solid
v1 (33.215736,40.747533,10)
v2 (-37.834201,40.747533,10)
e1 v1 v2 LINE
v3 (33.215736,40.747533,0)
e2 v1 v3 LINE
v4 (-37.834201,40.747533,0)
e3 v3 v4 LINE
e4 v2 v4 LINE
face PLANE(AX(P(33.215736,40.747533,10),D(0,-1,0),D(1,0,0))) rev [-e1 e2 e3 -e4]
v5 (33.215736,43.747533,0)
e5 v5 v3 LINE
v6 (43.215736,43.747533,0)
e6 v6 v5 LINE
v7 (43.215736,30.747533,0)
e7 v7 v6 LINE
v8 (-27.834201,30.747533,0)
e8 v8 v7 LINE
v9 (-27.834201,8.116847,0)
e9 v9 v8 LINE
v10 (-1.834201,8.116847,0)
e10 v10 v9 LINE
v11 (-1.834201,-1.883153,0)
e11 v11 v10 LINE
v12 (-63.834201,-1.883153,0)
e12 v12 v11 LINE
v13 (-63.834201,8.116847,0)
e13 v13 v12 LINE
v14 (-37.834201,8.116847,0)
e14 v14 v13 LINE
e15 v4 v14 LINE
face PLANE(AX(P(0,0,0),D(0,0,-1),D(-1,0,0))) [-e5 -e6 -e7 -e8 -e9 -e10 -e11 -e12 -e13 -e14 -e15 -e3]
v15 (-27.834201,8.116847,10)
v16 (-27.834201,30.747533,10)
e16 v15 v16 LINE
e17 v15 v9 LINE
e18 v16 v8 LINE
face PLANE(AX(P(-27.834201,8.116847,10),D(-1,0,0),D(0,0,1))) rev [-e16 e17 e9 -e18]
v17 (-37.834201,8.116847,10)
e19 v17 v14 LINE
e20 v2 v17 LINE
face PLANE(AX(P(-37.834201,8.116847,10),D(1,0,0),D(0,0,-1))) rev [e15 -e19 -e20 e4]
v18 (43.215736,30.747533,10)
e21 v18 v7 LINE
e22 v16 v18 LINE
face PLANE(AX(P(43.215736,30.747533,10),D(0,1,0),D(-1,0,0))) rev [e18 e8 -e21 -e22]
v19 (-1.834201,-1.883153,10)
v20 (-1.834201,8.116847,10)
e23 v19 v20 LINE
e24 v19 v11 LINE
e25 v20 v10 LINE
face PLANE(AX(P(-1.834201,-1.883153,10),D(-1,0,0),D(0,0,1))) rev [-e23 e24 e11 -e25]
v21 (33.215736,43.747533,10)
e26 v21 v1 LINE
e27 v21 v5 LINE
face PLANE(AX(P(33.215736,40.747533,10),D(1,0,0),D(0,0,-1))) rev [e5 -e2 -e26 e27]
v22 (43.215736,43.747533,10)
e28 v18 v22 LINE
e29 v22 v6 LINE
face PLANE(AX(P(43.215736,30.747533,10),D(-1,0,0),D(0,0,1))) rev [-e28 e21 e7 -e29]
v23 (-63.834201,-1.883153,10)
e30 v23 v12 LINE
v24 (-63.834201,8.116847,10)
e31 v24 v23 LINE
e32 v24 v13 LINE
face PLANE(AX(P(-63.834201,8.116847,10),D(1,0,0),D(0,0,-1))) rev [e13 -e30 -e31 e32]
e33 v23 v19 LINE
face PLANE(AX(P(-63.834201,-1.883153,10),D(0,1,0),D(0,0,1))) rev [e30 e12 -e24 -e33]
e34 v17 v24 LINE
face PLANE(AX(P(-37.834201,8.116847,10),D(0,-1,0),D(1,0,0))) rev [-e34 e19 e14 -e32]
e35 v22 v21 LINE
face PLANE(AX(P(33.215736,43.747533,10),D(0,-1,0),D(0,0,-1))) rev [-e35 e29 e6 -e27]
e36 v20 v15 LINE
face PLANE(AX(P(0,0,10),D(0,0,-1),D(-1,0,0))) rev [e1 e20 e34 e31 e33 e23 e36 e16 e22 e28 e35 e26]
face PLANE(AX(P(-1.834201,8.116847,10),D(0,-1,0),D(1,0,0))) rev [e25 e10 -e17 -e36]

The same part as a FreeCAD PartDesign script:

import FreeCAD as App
import Part
import Sketcher
from FreeCAD import Vector

doc = App.newDocument("Part")
body = doc.addObject("PartDesign::Body", "Body")

# Sketch on XY plane
sketch1 = body.newObject("Sketcher::SketchObject", "Sketch")
sketch1.AttachmentSupport = (doc.getObject("XY_Plane"), [""])
sketch1.MapMode = "FlatFace"
sketch1.addGeometry([
    Part.LineSegment(Vector(-63.834201, 8.116847, 0), Vector(-63.834201, -1.883153, 0)),  # 0
    Part.LineSegment(Vector(-63.834201, -1.883153, 0), Vector(-1.834201, -1.883153, 0)),  # 1
    Part.LineSegment(Vector(-1.834201, -1.883153, 0), Vector(-1.834201, 8.116847, 0)),  # 2
    Part.LineSegment(Vector(-1.834201, 8.116847, 0), Vector(-27.834201, 8.116847, 0)),  # 3
    Part.LineSegment(Vector(-27.834201, 8.116847, 0), Vector(-27.834201, 30.747533, 0)),  # 4
    Part.LineSegment(Vector(-27.834201, 30.747533, 0), Vector(43.215736, 30.747533, 0)),  # 5
    Part.LineSegment(Vector(43.215736, 30.747533, 0), Vector(43.215736, 43.747533, 0)),  # 6
    Part.LineSegment(Vector(43.215736, 43.747533, 0), Vector(33.215736, 43.747533, 0)),  # 7
    Part.LineSegment(Vector(33.215736, 43.747533, 0), Vector(33.215736, 40.747533, 0)),  # 8
    Part.LineSegment(Vector(33.215736, 40.747533, 0), Vector(-37.834201, 40.747533, 0)),  # 9
    Part.LineSegment(Vector(-37.834201, 40.747533, 0), Vector(-37.834201, 8.116847, 0)),  # 10
    Part.LineSegment(Vector(-37.834201, 8.116847, 0), Vector(-63.834201, 8.116847, 0)),  # 11
], False)
sketch1.addConstraint([
    Sketcher.Constraint("Coincident", 0, 2, 1, 1),
    Sketcher.Constraint("Coincident", 1, 2, 2, 1),
    Sketcher.Constraint("Coincident", 2, 2, 3, 1),
    Sketcher.Constraint("Coincident", 3, 2, 4, 1),
    Sketcher.Constraint("Coincident", 4, 2, 5, 1),
    Sketcher.Constraint("Coincident", 5, 2, 6, 1),
    Sketcher.Constraint("Coincident", 6, 2, 7, 1),
    Sketcher.Constraint("Coincident", 7, 2, 8, 1),
    Sketcher.Constraint("Coincident", 8, 2, 9, 1),
    Sketcher.Constraint("Coincident", 9, 2, 10, 1),
    Sketcher.Constraint("Coincident", 10, 2, 11, 1),
    Sketcher.Constraint("Coincident", 11, 2, 0, 1),
    Sketcher.Constraint("Vertical", 0),
    Sketcher.Constraint("Horizontal", 1),
    Sketcher.Constraint("Vertical", 2),
    Sketcher.Constraint("Horizontal", 3),
    Sketcher.Constraint("Vertical", 4),
    Sketcher.Constraint("Horizontal", 5),
    Sketcher.Constraint("Vertical", 6),
    Sketcher.Constraint("Horizontal", 7),
    Sketcher.Constraint("Vertical", 8),
    Sketcher.Constraint("Horizontal", 9),
    Sketcher.Constraint("Vertical", 10),
    Sketcher.Constraint("Horizontal", 11),
    Sketcher.Constraint("Horizontal", 3, 2, 10, 2),
    Sketcher.Constraint("Equal", 5, 9),
    Sketcher.Constraint("Equal", 3, 11),
    Sketcher.Constraint("Equal", 7, 0),
    Sketcher.Constraint("DistanceX", 1, 1, 1, 2, 62.0),
    Sketcher.Constraint("DistanceX", 3, 2, 3, 1, 26.0),
    Sketcher.Constraint("DistanceY", 6, 1, 6, 2, 13.0),
    Sketcher.Constraint("DistanceY", 8, 2, 8, 1, 3.0),
    Sketcher.Constraint("DistanceX", 0, 2, -1, 1, 63.834201),
    Sketcher.Constraint("DistanceX", 5, 1, 5, 2, 71.049937),
    Sketcher.Constraint("DistanceY", 4, 1, 4, 2, 22.630686),
    Sketcher.Constraint("DistanceY", 0, 2, -1, 1, 1.883153),
])
pad1 = body.newObject("PartDesign::Pad", "Pad")
pad1.Profile = sketch1
pad1.Length = 10

doc.recompute()
